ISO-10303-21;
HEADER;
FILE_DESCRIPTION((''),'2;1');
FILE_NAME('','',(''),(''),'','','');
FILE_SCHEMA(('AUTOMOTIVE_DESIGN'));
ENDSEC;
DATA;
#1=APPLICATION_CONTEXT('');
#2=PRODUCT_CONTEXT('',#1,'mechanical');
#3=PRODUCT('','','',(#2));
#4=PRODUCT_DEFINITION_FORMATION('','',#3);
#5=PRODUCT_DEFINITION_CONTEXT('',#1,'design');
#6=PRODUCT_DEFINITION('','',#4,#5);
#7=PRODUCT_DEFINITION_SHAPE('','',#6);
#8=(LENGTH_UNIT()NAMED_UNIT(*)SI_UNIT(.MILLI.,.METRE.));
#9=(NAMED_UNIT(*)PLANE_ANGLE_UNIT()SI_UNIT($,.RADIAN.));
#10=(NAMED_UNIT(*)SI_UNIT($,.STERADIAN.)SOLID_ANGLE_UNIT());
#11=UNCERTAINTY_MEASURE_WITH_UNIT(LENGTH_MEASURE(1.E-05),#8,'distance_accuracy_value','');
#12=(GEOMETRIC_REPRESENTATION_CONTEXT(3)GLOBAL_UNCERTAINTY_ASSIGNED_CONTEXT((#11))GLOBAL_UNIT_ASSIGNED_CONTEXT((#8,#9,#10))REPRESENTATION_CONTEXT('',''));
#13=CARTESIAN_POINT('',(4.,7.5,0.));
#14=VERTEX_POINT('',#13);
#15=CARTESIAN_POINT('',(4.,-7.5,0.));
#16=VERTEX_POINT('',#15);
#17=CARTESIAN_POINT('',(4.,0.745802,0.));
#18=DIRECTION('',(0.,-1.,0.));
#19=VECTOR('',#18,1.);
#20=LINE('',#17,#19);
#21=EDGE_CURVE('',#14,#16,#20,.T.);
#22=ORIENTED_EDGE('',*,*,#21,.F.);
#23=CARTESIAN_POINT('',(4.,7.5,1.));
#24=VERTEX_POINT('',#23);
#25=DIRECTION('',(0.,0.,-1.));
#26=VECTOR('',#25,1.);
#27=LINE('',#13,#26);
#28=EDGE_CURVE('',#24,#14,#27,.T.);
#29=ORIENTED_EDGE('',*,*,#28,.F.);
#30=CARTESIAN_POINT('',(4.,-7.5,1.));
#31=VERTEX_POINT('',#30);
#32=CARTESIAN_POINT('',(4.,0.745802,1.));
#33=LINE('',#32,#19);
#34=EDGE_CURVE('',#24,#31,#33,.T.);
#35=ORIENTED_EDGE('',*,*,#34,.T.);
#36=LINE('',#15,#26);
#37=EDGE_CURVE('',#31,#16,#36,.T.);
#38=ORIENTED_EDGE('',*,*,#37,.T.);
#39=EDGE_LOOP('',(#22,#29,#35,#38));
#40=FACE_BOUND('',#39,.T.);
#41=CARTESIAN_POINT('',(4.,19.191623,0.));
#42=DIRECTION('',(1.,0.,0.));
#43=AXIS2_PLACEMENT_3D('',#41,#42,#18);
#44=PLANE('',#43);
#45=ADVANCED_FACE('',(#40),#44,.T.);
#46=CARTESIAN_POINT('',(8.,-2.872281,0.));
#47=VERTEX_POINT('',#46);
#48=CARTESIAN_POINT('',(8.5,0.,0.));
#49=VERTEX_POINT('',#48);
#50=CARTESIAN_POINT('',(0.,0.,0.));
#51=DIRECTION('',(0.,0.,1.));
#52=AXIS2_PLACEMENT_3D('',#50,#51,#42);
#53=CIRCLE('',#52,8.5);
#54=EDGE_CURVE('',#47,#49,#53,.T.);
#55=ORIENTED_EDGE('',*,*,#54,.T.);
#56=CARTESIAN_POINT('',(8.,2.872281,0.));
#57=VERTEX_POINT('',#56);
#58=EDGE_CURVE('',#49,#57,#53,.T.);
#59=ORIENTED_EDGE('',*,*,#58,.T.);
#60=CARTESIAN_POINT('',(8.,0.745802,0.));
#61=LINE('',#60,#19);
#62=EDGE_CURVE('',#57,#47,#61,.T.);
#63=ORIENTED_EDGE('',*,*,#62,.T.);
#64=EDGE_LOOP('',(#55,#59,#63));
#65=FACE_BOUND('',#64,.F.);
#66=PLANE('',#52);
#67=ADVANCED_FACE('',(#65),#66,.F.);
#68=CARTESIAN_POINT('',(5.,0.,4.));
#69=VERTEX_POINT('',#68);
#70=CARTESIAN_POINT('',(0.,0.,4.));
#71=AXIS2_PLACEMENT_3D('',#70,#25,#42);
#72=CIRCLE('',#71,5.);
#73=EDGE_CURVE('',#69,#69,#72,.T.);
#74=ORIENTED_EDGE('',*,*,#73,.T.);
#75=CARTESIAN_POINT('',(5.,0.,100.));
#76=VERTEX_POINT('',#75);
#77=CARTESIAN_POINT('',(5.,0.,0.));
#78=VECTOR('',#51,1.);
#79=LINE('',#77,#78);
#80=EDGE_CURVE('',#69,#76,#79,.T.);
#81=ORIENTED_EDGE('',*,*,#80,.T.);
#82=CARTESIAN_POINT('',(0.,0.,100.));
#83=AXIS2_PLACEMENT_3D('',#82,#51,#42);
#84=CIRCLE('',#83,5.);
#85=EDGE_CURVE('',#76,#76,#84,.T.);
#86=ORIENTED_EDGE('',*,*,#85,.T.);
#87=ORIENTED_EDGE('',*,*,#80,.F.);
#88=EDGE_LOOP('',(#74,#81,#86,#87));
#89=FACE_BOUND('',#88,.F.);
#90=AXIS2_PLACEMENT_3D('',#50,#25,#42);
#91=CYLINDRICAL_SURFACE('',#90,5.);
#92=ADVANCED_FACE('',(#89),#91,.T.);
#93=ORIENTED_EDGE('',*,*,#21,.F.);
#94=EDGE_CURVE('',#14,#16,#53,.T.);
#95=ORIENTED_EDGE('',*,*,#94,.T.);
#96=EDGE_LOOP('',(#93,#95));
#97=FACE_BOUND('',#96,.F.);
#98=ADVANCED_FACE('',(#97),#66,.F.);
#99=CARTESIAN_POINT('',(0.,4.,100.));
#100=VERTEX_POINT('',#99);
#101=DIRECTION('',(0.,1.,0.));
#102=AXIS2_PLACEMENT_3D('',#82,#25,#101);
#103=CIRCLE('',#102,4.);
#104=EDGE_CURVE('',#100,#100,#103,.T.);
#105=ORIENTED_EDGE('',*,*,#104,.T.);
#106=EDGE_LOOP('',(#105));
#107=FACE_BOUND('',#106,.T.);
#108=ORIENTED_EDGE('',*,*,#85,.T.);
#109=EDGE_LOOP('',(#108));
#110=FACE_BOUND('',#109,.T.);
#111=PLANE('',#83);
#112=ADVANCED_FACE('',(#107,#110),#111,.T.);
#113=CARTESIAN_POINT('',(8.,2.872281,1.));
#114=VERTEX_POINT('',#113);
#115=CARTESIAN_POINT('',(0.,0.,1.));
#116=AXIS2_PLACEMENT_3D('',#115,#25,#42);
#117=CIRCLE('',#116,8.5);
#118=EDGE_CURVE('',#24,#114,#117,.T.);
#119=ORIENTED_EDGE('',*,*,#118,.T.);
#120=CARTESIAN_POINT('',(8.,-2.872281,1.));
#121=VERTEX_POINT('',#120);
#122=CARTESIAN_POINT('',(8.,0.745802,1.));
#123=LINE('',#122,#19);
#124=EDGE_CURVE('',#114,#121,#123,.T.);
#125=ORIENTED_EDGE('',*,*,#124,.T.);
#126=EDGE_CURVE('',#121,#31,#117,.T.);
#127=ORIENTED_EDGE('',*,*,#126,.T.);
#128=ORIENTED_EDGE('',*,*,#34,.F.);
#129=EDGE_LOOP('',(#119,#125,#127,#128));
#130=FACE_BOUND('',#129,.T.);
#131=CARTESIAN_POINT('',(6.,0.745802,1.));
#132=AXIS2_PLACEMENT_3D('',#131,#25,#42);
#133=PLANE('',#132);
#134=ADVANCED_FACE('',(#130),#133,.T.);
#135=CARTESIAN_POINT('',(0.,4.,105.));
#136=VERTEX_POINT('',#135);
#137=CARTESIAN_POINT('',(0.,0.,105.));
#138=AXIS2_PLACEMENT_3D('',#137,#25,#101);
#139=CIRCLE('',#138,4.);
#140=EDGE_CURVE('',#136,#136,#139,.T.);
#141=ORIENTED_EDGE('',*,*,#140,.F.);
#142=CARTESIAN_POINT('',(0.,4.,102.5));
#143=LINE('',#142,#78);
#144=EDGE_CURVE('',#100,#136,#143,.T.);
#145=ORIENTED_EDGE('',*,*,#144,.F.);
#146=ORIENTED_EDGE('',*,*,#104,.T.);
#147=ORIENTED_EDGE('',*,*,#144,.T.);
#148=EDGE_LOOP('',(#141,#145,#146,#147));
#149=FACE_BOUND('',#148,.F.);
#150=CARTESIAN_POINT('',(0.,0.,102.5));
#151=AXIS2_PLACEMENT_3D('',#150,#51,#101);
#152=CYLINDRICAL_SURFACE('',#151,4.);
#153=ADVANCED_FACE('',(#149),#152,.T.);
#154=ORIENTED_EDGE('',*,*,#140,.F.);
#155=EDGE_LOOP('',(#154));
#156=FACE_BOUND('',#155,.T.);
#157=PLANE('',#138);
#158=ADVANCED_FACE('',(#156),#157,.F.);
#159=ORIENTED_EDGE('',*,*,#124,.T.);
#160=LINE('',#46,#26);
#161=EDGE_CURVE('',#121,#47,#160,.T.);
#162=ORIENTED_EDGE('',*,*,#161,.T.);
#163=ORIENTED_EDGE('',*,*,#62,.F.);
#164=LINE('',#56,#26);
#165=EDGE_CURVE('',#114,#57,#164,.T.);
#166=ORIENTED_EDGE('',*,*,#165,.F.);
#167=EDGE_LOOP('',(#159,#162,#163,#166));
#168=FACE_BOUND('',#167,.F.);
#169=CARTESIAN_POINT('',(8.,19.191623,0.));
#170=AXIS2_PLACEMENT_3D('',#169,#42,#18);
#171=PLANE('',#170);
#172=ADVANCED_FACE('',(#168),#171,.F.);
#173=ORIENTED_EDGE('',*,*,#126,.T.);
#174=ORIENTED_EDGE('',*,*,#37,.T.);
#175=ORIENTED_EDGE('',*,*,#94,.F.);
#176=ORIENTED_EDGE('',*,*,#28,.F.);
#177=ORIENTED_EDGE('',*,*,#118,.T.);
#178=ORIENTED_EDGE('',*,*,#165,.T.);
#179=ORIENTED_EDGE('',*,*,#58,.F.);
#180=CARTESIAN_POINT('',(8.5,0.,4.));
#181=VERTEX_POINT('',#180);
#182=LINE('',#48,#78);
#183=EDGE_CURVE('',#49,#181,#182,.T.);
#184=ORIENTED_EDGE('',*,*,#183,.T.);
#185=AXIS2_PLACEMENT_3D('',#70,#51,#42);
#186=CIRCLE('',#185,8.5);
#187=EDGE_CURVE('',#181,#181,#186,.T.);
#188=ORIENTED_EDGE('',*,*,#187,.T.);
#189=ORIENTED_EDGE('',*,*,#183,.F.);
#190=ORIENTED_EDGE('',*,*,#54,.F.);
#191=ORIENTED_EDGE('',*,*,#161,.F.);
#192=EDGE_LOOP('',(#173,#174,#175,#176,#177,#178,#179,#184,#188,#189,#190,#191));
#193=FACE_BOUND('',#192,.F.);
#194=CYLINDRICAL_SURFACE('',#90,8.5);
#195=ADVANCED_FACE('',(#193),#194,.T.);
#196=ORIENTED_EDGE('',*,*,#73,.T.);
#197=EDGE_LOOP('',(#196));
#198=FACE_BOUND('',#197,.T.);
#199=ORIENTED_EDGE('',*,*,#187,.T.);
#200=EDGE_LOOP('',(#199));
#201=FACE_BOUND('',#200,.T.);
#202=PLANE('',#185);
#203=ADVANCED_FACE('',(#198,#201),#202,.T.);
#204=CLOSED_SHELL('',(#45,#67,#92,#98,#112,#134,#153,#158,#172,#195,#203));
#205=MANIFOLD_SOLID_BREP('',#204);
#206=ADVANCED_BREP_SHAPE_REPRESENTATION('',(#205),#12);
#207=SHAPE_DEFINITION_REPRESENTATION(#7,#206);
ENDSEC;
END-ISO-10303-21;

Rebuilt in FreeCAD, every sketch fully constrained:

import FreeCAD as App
import Part
import Sketcher
Q = App.Units.Quantity


def add_polygon(sketch, points):
    """Adds a closed chain of lines whose ends are joined by coincident constraints."""
    first, n = sketch.GeometryCount, len(points)
    for a, b in zip(points, points[1:] + points[:1]):
        sketch.addGeometry(Part.LineSegment(App.Vector(*a, 0), App.Vector(*b, 0)), False)
    for i in range(n):
        sketch.addConstraint(Sketcher.Constraint("Coincident", first + i, 2, first + (i + 1) % n, 1))

doc = App.newDocument("Part")
body = doc.addObject("PartDesign::Body", "Body")

# Sketch on XY plane
sketch1 = body.newObject("Sketcher::SketchObject", "Sketch")
sketch1.AttachmentSupport = (doc.getObject("XY_Plane"), [""])
sketch1.MapMode = "FlatFace"
sketch1.addGeometry(Part.Circle(App.Vector(0, 0, 0), App.Vector(0, 0, 1), 8), False)
sketch1.addConstraint(Sketcher.Constraint("Coincident", 0, 3, -1, 1))
sketch1.addConstraint(Sketcher.Constraint("Diameter", 0, Q("17 mm")))
pad1 = body.newObject("PartDesign::Pad", "Pad")
pad1.Profile = sketch1
pad1.Length = 4

# Sketch on XY plane
sketch2 = body.newObject("Sketcher::SketchObject", "Sketch001")
sketch2.AttachmentSupport = (doc.getObject("XY_Plane"), [""])
sketch2.MapMode = "FlatFace"
sketch2.addGeometry(Part.Circle(App.Vector(0, 0, 0), App.Vector(0, 0, 1), 5), False)
sketch2.addConstraint(Sketcher.Constraint("Coincident", 0, 3, -1, 1))
sketch2.addConstraint(Sketcher.Constraint("Diameter", 0, Q("10 mm")))
pad2 = body.newObject("PartDesign::Pad", "Pad001")
pad2.Profile = sketch2
pad2.Length = 100

# Sketch on YZ plane
sketch3 = body.newObject("Sketcher::SketchObject", "Sketch002")
sketch3.AttachmentSupport = (doc.getObject("YZ_Plane"), [""])
sketch3.MapMode = "FlatFace"
add_polygon(sketch3, [(0, 105), (0, 100), (4, 100), (4, 105)])  # lines 0-3
sketch3.addConstraint(Sketcher.Constraint("Vertical", 0))
sketch3.addConstraint(Sketcher.Constraint("Horizontal", 1))
sketch3.addConstraint(Sketcher.Constraint("Vertical", 2))
sketch3.addConstraint(Sketcher.Constraint("Horizontal", 3))
sketch3.addConstraint(Sketcher.Constraint("PointOnObject", 0, 2, -2))
sketch3.addConstraint(Sketcher.Constraint("DistanceX", 1, 1, 1, 2, Q("4 mm")))
sketch3.addConstraint(Sketcher.Constraint("DistanceY", 0, 2, 0, 1, Q("5 mm")))
sketch3.addConstraint(Sketcher.Constraint("DistanceY", -1, 1, 0, 2, Q("100 mm")))
revolution = body.newObject("PartDesign::Revolution", "Revolution")
revolution.Profile = sketch3
revolution.ReferenceAxis = (sketch3, ["V_Axis"])
revolution.Angle = 360

# Sketch on XY plane
sketch4 = body.newObject("Sketcher::SketchObject", "Sketch003")
sketch4.AttachmentSupport = (doc.getObject("XY_Plane"), [""])
sketch4.MapMode = "FlatFace"
add_polygon(sketch4, [(4, -17.7), (4, 19.2), (8, 19.2), (8, -17.7)])  # lines 0-3
sketch4.addConstraint(Sketcher.Constraint("Vertical", 0))
sketch4.addConstraint(Sketcher.Constraint("Horizontal", 1))
sketch4.addConstraint(Sketcher.Constraint("Vertical", 2))
sketch4.addConstraint(Sketcher.Constraint("Horizontal", 3))
sketch4.addConstraint(Sketcher.Constraint("DistanceX", 1, 1, 1, 2, Q("4 mm")))
sketch4.addConstraint(Sketcher.Constraint("DistanceX", -1, 1, 0, 2, Q("4 mm")))
sketch4.addConstraint(Sketcher.Constraint("DistanceY", 0, 1, 0, 2, Q("36.891641 mm")))
sketch4.addConstraint(Sketcher.Constraint("DistanceY", 2, 2, -1, 1, Q("17.700018 mm")))
pocket1 = body.newObject("PartDesign::Pocket", "Pocket")
pocket1.Profile = sketch4
pocket1.Length = 1
pocket1.Reversed = True

doc.recompute()
